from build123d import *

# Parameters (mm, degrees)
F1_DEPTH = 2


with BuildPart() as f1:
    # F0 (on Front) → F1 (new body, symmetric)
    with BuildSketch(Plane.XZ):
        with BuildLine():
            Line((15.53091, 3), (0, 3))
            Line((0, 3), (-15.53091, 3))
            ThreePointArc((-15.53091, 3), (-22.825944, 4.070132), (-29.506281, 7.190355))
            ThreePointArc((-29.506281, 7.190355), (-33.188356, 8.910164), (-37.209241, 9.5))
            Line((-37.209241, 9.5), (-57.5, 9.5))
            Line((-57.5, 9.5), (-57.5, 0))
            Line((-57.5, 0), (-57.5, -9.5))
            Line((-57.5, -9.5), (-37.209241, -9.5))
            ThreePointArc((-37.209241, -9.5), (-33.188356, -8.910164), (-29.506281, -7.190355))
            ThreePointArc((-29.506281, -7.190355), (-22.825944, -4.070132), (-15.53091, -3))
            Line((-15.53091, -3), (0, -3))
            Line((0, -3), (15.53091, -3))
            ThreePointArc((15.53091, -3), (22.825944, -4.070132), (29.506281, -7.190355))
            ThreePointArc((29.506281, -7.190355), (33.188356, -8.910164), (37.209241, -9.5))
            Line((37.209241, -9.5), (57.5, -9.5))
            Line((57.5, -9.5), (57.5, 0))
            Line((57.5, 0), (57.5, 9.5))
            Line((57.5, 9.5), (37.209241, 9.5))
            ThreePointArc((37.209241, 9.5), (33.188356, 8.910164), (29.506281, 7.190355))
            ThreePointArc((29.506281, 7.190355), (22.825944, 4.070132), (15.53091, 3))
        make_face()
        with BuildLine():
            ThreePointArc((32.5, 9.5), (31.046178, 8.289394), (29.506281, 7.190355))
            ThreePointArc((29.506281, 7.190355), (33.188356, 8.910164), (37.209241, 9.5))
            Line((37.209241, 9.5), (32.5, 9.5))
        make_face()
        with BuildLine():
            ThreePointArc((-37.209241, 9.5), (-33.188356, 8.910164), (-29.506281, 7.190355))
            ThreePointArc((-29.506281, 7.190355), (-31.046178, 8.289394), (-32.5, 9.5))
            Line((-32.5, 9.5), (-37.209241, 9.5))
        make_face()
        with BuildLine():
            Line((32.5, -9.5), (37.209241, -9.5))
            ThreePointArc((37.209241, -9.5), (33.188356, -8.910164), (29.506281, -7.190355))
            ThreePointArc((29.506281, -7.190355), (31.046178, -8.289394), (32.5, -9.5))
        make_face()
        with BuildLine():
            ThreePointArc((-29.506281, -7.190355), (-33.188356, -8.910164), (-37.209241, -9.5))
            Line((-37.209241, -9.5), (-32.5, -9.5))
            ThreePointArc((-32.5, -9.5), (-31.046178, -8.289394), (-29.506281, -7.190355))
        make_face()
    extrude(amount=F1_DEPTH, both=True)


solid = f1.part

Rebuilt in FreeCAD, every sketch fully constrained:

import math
import FreeCAD as App
import Part
import Sketcher

V = App.Vector

doc = App.newDocument("Part")
body = doc.addObject("PartDesign::Body", "Body")

# Sketch on XZ plane
sketch1 = doc.addObject("Sketcher::SketchObject", "Sketch")
body.addObject(sketch1)
sketch1.AttachmentSupport = (doc.XZ_Plane, [""])
sketch1.MapMode = "FlatFace"
sketch1.addGeometry([
    Part.LineSegment(V(15.53091, 3, 0), V(-15.53091, 3, 0)),  # 0
    Part.ArcOfCircle(Part.Circle(V(-15.530909, 28.400009, 0), V(0, 0, 1), 25.400009), math.radians(-123.381511), math.radians(-90.000003)),  # 1
    Part.ArcOfCircle(Part.Circle(V(-15.530861, 28.400059, 0), V(0, 0, 1), 25.400076), math.radians(-131.918613), math.radians(-123.381539)),  # 2
    Part.LineSegment(V(-32.5, 9.5, 0), V(-57.5, 9.5, 0)),  # 3
    Part.LineSegment(V(-57.5, 9.5, 0), V(-57.5, -9.5, 0)),  # 4
    Part.LineSegment(V(-57.5, -9.5, 0), V(-32.5, -9.5, 0)),  # 5
    Part.ArcOfCircle(Part.Circle(V(-15.530861, -28.400059, 0), V(0, 0, 1), 25.400076), math.radians(123.381539), math.radians(131.918613)),  # 6
    Part.ArcOfCircle(Part.Circle(V(-15.530909, -28.400009, 0), V(0, 0, 1), 25.400009), math.radians(90.000003), math.radians(123.381511)),  # 7
    Part.LineSegment(V(-15.53091, -3, 0), V(15.53091, -3, 0)),  # 8
    Part.ArcOfCircle(Part.Circle(V(15.530909, -28.400009, 0), V(0, 0, 1), 25.400009), math.radians(56.618489), math.radians(89.999997)),  # 9
    Part.ArcOfCircle(Part.Circle(V(15.530861, -28.400059, 0), V(0, 0, 1), 25.400076), math.radians(48.081387), math.radians(56.618461)),  # 10
    Part.LineSegment(V(32.5, -9.5, 0), V(57.5, -9.5, 0)),  # 11
    Part.LineSegment(V(57.5, -9.5, 0), V(57.5, 9.5, 0)),  # 12
    Part.LineSegment(V(57.5, 9.5, 0), V(32.5, 9.5, 0)),  # 13
    Part.ArcOfCircle(Part.Circle(V(15.530861, 28.400059, 0), V(0, 0, 1), 25.400076), math.radians(-56.618461), math.radians(-48.081387)),  # 14
    Part.ArcOfCircle(Part.Circle(V(15.530909, 28.400009, 0), V(0, 0, 1), 25.400009), math.radians(-89.999997), math.radians(-56.618489)),  # 15
], False)
sketch1.addConstraint([
    Sketcher.Constraint("Tangent", 0, 2, 1, 2),
    Sketcher.Constraint("Tangent", 1, 1, 2, 2),
    Sketcher.Constraint("Coincident", 2, 1, 3, 1),
    Sketcher.Constraint("Coincident", 3, 2, 4, 1),
    Sketcher.Constraint("Coincident", 4, 2, 5, 1),
    Sketcher.Constraint("Coincident", 5, 2, 6, 2),
    Sketcher.Constraint("Tangent", 6, 1, 7, 2),
    Sketcher.Constraint("Tangent", 7, 1, 8, 1),
    Sketcher.Constraint("Tangent", 8, 2, 9, 2),
    Sketcher.Constraint("Tangent", 9, 1, 10, 2),
    Sketcher.Constraint("Coincident", 10, 1, 11, 1),
    Sketcher.Constraint("Coincident", 11, 2, 12, 1),
    Sketcher.Constraint("Coincident", 12, 2, 13, 1),
    Sketcher.Constraint("Coincident", 13, 2, 14, 2),
    Sketcher.Constraint("Tangent", 14, 1, 15, 2),
    Sketcher.Constraint("Tangent", 15, 1, 0, 1),
    Sketcher.Constraint("Horizontal", 0),
    Sketcher.Constraint("Horizontal", 3),
    Sketcher.Constraint("Vertical", 4),
    Sketcher.Constraint("Horizontal", 5),
    Sketcher.Constraint("Horizontal", 8),
    Sketcher.Constraint("Horizontal", 11),
    Sketcher.Constraint("Vertical", 12),
    Sketcher.Constraint("Horizontal", 13),
    Sketcher.Constraint("Equal", 2, 6),
    Sketcher.Constraint("Equal", 1, 7),
    Sketcher.Constraint("Equal", 7, 9),
    Sketcher.Constraint("Equal", 6, 10),
    Sketcher.Constraint("Equal", 10, 14),
    Sketcher.Constraint("Equal", 9, 15),
    Sketcher.Constraint("Symmetric", 1, 3, 9, 3, -1, 1),
    Sketcher.Constraint("Symmetric", 3, 2, 11, 2, -1, 1),
    Sketcher.Constraint("Symmetric", 5, 2, 13, 2, -1, 1),
    Sketcher.Constraint("Symmetric", 6, 1, 9, 1, -2),
    Sketcher.Constraint("Horizontal", 5, 2, 10, 1),
    Sketcher.Constraint("Horizontal", 1, 1, 14, 1),
    Sketcher.Constraint("Vertical", 1, 1, 6, 1),
    Sketcher.Constraint("DistanceX", 3, 2, 3, 1, 25.0),
    Sketcher.Constraint("DistanceY", 4, 2, 4, 1, 19.0),
    Sketcher.Constraint("DistanceY", -1, 1, 0, 2, 3.0),
    Sketcher.Constraint("DistanceX", 2, 1, -1, 1, 32.5),
    Sketcher.Constraint("Radius", 1, 25.400009),
    Sketcher.Constraint("Radius", 2, 25.400076),
    Sketcher.Constraint("DistanceX", 1, 1, -1, 1, 29.506281),
])
pad1 = doc.addObject("PartDesign::Pad", "Pad")
body.addObject(pad1)
pad1.Profile = sketch1
pad1.Length = 4
pad1.Midplane = True

doc.recompute()
